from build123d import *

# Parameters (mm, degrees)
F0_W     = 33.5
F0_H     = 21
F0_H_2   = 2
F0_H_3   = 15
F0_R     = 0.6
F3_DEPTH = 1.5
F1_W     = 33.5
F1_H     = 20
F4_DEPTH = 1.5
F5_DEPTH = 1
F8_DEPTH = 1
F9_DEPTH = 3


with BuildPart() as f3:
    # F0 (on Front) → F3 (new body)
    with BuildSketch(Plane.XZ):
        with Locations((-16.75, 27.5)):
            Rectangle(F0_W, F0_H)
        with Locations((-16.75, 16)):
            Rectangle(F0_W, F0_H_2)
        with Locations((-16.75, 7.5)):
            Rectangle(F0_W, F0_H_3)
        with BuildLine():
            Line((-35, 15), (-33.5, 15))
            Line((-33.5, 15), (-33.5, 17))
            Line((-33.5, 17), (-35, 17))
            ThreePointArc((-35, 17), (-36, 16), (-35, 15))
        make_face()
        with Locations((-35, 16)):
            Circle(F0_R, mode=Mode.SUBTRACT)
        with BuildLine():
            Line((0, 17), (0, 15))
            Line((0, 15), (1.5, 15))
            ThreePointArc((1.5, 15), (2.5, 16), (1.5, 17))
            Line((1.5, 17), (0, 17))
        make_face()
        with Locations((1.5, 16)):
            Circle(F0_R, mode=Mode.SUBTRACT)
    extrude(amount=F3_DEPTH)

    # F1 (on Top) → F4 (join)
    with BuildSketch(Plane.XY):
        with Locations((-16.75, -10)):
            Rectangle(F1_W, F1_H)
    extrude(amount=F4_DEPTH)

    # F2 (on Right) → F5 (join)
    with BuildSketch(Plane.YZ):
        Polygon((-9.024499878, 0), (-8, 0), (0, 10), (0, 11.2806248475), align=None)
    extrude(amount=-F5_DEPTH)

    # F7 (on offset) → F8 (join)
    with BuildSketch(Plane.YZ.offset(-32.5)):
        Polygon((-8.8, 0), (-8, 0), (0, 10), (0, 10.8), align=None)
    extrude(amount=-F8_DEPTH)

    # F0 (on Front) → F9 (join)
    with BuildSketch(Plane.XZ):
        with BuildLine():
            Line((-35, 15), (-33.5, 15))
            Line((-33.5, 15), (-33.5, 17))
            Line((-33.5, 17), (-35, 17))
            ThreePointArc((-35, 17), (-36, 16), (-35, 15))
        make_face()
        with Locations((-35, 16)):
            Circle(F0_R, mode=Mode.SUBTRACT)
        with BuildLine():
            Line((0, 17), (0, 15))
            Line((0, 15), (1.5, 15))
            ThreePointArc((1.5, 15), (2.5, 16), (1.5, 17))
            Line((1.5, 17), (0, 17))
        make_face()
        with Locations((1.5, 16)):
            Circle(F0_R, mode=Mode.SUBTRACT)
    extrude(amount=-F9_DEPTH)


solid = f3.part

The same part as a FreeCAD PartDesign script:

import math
import FreeCAD as App
import Part
import Sketcher

V = App.Vector
Q = App.Units.Quantity


def add_polygon(sketch, points):
    """Adds a closed chain of lines whose ends are joined by coincident constraints."""
    first, n = sketch.GeometryCount, len(points)
    for a, b in zip(points, points[1:] + points[:1]):
        sketch.addGeometry(Part.LineSegment(App.Vector(*a, 0), App.Vector(*b, 0)), False)
    for i in range(n):
        sketch.addConstraint(Sketcher.Constraint("Coincident", first + i, 2, first + (i + 1) % n, 1))

doc = App.newDocument("Part")
body = doc.addObject("PartDesign::Body", "Body")

# Sketch on XZ plane
sketch1 = body.newObject("Sketcher::SketchObject", "Sketch")
sketch1.AttachmentSupport = (doc.getObject("XZ_Plane"), [""])
sketch1.MapMode = "FlatFace"
sketch1.addGeometry([
    Part.LineSegment(V(-33.5, 38, 0), V(-33.5, 17, 0)),  # 0
    Part.LineSegment(V(-33.5, 17, 0), V(-35, 17, 0)),  # 1
    Part.ArcOfCircle(Part.Circle(V(-35, 16, 0), V(0, 0, 1), 1), math.radians(90), math.radians(270)),  # 2
    Part.LineSegment(V(-35, 15, 0), V(-33.5, 15, 0)),  # 3
    Part.LineSegment(V(-33.5, 15, 0), V(-33.5, 0, 0)),  # 4
    Part.LineSegment(V(-33.5, 0, 0), V(0, 0, 0)),  # 5
    Part.LineSegment(V(0, 0, 0), V(0, 15, 0)),  # 6
    Part.LineSegment(V(0, 15, 0), V(1.5, 15, 0)),  # 7
    Part.ArcOfCircle(Part.Circle(V(1.5, 16, 0), V(0, 0, 1), 1), math.radians(-90), math.radians(90)),  # 8
    Part.LineSegment(V(1.5, 17, 0), V(0, 17, 0)),  # 9
    Part.LineSegment(V(0, 17, 0), V(0, 38, 0)),  # 10
    Part.LineSegment(V(0, 38, 0), V(-33.5, 38, 0)),  # 11
    Part.Circle(V(-35, 16, 0), V(0, 0, 1), 0.6),  # 12
    Part.Circle(V(1.5, 16, 0), V(0, 0, 1), 0.6),  # 13
], False)
sketch1.addConstraint([
    Sketcher.Constraint("Coincident", 0, 2, 1, 1),
    Sketcher.Constraint("Tangent", 1, 2, 2, 1),
    Sketcher.Constraint("Tangent", 2, 2, 3, 1),
    Sketcher.Constraint("Coincident", 3, 2, 4, 1),
    Sketcher.Constraint("Coincident", 4, 2, 5, 1),
    Sketcher.Constraint("Coincident", 5, 2, 6, 1),
    Sketcher.Constraint("Coincident", 6, 2, 7, 1),
    Sketcher.Constraint("Tangent", 7, 2, 8, 1),
    Sketcher.Constraint("Tangent", 8, 2, 9, 1),
    Sketcher.Constraint("Coincident", 9, 2, 10, 1),
    Sketcher.Constraint("Coincident", 10, 2, 11, 1),
    Sketcher.Constraint("Coincident", 11, 2, 0, 1),
    Sketcher.Constraint("Vertical", 0),
    Sketcher.Constraint("Horizontal", 1),
    Sketcher.Constraint("Horizontal", 3),
    Sketcher.Constraint("Vertical", 4),
    Sketcher.Constraint("Horizontal", 5),
    Sketcher.Constraint("Vertical", 6),
    Sketcher.Constraint("Horizontal", 7),
    Sketcher.Constraint("Horizontal", 9),
    Sketcher.Constraint("Vertical", 10),
    Sketcher.Constraint("Horizontal", 11),
    Sketcher.Constraint("Coincident", 5, 2, -1, 1),
    Sketcher.Constraint("Coincident", 12, 3, 2, 3),
    Sketcher.Constraint("Coincident", 13, 3, 8, 3),
    Sketcher.Constraint("Equal", 2, 8),
    Sketcher.Constraint("Equal", 12, 13),
    Sketcher.Constraint("PointOnObject", 9, 2, -2),
    Sketcher.Constraint("Horizontal", 2, 3, 8, 3),
    Sketcher.Constraint("Vertical", 0, 2, 3, 2),
    Sketcher.Constraint("Equal", 3, 7),
    Sketcher.Constraint("Radius", 2, Q("1 mm")),
    Sketcher.Constraint("Diameter", 12, Q("1.2 mm")),
    Sketcher.Constraint("DistanceY", 0, 2, 0, 1, Q("21 mm")),
    Sketcher.Constraint("DistanceY", 4, 2, 4, 1, Q("15 mm")),
    Sketcher.Constraint("DistanceX", 1, 2, 1, 1, Q("1.5 mm")),
    Sketcher.Constraint("DistanceX", 5, 1, 5, 2, Q("33.5 mm")),
])
pad1 = body.newObject("PartDesign::Pad", "Pad")
pad1.Profile = sketch1
pad1.Length = 1.5

# Sketch on XY plane
sketch2 = body.newObject("Sketcher::SketchObject", "Sketch001")
sketch2.AttachmentSupport = (doc.getObject("XY_Plane"), [""])
sketch2.MapMode = "FlatFace"
add_polygon(sketch2, [(-33.5, 0), (-33.5, -20), (0, -20), (0, 0)])  # lines 0-3
sketch2.addConstraint([
    Sketcher.Constraint("Vertical", 0),
    Sketcher.Constraint("Horizontal", 1),
    Sketcher.Constraint("Vertical", 2),
    Sketcher.Constraint("Horizontal", 3),
    Sketcher.Constraint("Coincident", 2, 2, -1, 1),
    Sketcher.Constraint("DistanceY", 0, 2, 0, 1, Q("20 mm")),
    Sketcher.Constraint("DistanceX", 1, 1, 1, 2, Q("33.5 mm")),
])
pad2 = body.newObject("PartDesign::Pad", "Pad001")
pad2.Profile = sketch2
pad2.Length = 1.5

# Sketch on YZ plane
sketch3 = body.newObject("Sketcher::SketchObject", "Sketch002")
sketch3.AttachmentSupport = (doc.getObject("YZ_Plane"), [""])
sketch3.MapMode = "FlatFace"
add_polygon(sketch3, [(-9.0245, 0), (-8, 0), (0, 10), (0, 11.280625)])  # lines 0-3
sketch3.addConstraint([
    Sketcher.Constraint("Horizontal", 0),
    Sketcher.Constraint("Vertical", 2),
    Sketcher.Constraint("PointOnObject", 0, 2, -1),
    Sketcher.Constraint("PointOnObject", 1, 2, -2),
    Sketcher.Constraint("Parallel", 1, 3),
    Sketcher.Constraint("DistanceX", 0, 2, -1, 1, Q("8 mm")),
    Sketcher.Constraint("DistanceY", -1, 1, 1, 2, Q("10 mm")),
    Sketcher.Constraint("DistanceX", 0, 1, 0, 2, Q("1.0245 mm")),
])
pad3 = body.newObject("PartDesign::Pad", "Pad002")
pad3.Profile = sketch3
pad3.Length = 1
pad3.Reversed = True

# Sketch on YZ plane
sketch4 = body.newObject("Sketcher::SketchObject", "Sketch003")
sketch4.AttachmentSupport = (doc.getObject("YZ_Plane"), [""])
sketch4.MapMode = "FlatFace"
sketch4.AttachmentOffset = App.Placement(V(0, 0, -32.5), App.Rotation())
add_polygon(sketch4, [(-8.8, 0), (-8, 0), (0, 10), (0, 10.8)])  # lines 0-3
sketch4.addConstraint([
    Sketcher.Constraint("Horizontal", 0),
    Sketcher.Constraint("Vertical", 2),
    Sketcher.Constraint("PointOnObject", 0, 2, -1),
    Sketcher.Constraint("PointOnObject", 1, 2, -2),
    Sketcher.Constraint("Equal", 0, 2),
    Sketcher.Constraint("DistanceX", 0, 1, 0, 2, Q("0.8 mm")),
    Sketcher.Constraint("DistanceX", 0, 2, -1, 1, Q("8 mm")),
    Sketcher.Constraint("DistanceY", -1, 1, 1, 2, Q("10 mm")),
])
pad4 = body.newObject("PartDesign::Pad", "Pad003")
pad4.Profile = sketch4
pad4.Length = 1
pad4.Reversed = True

# Sketch on XZ plane
sketch5 = body.newObject("Sketcher::SketchObject", "Sketch004")
sketch5.AttachmentSupport = (doc.getObject("XZ_Plane"), [""])
sketch5.MapMode = "FlatFace"
sketch5.addGeometry([
    Part.LineSegment(V(-35, 15, 0), V(-33.5, 15, 0)),  # 0
    Part.LineSegment(V(-33.5, 15, 0), V(-33.5, 17, 0)),  # 1
    Part.LineSegment(V(-33.5, 17, 0), V(-35, 17, 0)),  # 2
    Part.ArcOfCircle(Part.Circle(V(-35, 16, 0), V(0, 0, 1), 1), math.radians(90), math.radians(270)),  # 3
    Part.Circle(V(-35, 16, 0), V(0, 0, 1), 0.6),  # 4
    Part.LineSegment(V(0, 17, 0), V(0, 15, 0)),  # 5
    Part.LineSegment(V(0, 15, 0), V(1.5, 15, 0)),  # 6
    Part.ArcOfCircle(Part.Circle(V(1.5, 16, 0), V(0, 0, 1), 1), math.radians(-90), math.radians(90)),  # 7
    Part.LineSegment(V(1.5, 17, 0), V(0, 17, 0)),  # 8
    Part.Circle(V(1.5, 16, 0), V(0, 0, 1), 0.6),  # 9
], False)
sketch5.addConstraint([
    Sketcher.Constraint("Coincident", 0, 2, 1, 1),
    Sketcher.Constraint("Coincident", 1, 2, 2, 1),
    Sketcher.Constraint("Tangent", 2, 2, 3, 1),
    Sketcher.Constraint("Tangent", 3, 2, 0, 1),
    Sketcher.Constraint("Coincident", 5, 2, 6, 1),
    Sketcher.Constraint("Tangent", 6, 2, 7, 1),
    Sketcher.Constraint("Tangent", 7, 2, 8, 1),
    Sketcher.Constraint("Coincident", 8, 2, 5, 1),
    Sketcher.Constraint("Horizontal", 0),
    Sketcher.Constraint("Vertical", 1),
    Sketcher.Constraint("Horizontal", 2),
    Sketcher.Constraint("Vertical", 5),
    Sketcher.Constraint("Horizontal", 6),
    Sketcher.Constraint("Horizontal", 8),
    Sketcher.Constraint("Coincident", 4, 3, 3, 3),
    Sketcher.Constraint("Coincident", 9, 3, 7, 3),
    Sketcher.Constraint("Equal", 3, 7),
    Sketcher.Constraint("Equal", 4, 9),
    Sketcher.Constraint("PointOnObject", 5, 2, -2),
    Sketcher.Constraint("Horizontal", 4, 3, 7, 3),
    Sketcher.Constraint("Equal", 2, 6),
    Sketcher.Constraint("Radius", 3, Q("1 mm")),
    Sketcher.Constraint("Diameter", 4, Q("1.2 mm")),
    Sketcher.Constraint("DistanceX", 0, 1, 0, 2, Q("1.5 mm")),
    Sketcher.Constraint("DistanceX", 3, 3, -1, 1, Q("35 mm")),
    Sketcher.Constraint("DistanceY", -1, 1, 3, 3, Q("16 mm")),
])
pad5 = body.newObject("PartDesign::Pad", "Pad004")
pad5.Profile = sketch5
pad5.Length = 3
pad5.Reversed = True

doc.recompute()
